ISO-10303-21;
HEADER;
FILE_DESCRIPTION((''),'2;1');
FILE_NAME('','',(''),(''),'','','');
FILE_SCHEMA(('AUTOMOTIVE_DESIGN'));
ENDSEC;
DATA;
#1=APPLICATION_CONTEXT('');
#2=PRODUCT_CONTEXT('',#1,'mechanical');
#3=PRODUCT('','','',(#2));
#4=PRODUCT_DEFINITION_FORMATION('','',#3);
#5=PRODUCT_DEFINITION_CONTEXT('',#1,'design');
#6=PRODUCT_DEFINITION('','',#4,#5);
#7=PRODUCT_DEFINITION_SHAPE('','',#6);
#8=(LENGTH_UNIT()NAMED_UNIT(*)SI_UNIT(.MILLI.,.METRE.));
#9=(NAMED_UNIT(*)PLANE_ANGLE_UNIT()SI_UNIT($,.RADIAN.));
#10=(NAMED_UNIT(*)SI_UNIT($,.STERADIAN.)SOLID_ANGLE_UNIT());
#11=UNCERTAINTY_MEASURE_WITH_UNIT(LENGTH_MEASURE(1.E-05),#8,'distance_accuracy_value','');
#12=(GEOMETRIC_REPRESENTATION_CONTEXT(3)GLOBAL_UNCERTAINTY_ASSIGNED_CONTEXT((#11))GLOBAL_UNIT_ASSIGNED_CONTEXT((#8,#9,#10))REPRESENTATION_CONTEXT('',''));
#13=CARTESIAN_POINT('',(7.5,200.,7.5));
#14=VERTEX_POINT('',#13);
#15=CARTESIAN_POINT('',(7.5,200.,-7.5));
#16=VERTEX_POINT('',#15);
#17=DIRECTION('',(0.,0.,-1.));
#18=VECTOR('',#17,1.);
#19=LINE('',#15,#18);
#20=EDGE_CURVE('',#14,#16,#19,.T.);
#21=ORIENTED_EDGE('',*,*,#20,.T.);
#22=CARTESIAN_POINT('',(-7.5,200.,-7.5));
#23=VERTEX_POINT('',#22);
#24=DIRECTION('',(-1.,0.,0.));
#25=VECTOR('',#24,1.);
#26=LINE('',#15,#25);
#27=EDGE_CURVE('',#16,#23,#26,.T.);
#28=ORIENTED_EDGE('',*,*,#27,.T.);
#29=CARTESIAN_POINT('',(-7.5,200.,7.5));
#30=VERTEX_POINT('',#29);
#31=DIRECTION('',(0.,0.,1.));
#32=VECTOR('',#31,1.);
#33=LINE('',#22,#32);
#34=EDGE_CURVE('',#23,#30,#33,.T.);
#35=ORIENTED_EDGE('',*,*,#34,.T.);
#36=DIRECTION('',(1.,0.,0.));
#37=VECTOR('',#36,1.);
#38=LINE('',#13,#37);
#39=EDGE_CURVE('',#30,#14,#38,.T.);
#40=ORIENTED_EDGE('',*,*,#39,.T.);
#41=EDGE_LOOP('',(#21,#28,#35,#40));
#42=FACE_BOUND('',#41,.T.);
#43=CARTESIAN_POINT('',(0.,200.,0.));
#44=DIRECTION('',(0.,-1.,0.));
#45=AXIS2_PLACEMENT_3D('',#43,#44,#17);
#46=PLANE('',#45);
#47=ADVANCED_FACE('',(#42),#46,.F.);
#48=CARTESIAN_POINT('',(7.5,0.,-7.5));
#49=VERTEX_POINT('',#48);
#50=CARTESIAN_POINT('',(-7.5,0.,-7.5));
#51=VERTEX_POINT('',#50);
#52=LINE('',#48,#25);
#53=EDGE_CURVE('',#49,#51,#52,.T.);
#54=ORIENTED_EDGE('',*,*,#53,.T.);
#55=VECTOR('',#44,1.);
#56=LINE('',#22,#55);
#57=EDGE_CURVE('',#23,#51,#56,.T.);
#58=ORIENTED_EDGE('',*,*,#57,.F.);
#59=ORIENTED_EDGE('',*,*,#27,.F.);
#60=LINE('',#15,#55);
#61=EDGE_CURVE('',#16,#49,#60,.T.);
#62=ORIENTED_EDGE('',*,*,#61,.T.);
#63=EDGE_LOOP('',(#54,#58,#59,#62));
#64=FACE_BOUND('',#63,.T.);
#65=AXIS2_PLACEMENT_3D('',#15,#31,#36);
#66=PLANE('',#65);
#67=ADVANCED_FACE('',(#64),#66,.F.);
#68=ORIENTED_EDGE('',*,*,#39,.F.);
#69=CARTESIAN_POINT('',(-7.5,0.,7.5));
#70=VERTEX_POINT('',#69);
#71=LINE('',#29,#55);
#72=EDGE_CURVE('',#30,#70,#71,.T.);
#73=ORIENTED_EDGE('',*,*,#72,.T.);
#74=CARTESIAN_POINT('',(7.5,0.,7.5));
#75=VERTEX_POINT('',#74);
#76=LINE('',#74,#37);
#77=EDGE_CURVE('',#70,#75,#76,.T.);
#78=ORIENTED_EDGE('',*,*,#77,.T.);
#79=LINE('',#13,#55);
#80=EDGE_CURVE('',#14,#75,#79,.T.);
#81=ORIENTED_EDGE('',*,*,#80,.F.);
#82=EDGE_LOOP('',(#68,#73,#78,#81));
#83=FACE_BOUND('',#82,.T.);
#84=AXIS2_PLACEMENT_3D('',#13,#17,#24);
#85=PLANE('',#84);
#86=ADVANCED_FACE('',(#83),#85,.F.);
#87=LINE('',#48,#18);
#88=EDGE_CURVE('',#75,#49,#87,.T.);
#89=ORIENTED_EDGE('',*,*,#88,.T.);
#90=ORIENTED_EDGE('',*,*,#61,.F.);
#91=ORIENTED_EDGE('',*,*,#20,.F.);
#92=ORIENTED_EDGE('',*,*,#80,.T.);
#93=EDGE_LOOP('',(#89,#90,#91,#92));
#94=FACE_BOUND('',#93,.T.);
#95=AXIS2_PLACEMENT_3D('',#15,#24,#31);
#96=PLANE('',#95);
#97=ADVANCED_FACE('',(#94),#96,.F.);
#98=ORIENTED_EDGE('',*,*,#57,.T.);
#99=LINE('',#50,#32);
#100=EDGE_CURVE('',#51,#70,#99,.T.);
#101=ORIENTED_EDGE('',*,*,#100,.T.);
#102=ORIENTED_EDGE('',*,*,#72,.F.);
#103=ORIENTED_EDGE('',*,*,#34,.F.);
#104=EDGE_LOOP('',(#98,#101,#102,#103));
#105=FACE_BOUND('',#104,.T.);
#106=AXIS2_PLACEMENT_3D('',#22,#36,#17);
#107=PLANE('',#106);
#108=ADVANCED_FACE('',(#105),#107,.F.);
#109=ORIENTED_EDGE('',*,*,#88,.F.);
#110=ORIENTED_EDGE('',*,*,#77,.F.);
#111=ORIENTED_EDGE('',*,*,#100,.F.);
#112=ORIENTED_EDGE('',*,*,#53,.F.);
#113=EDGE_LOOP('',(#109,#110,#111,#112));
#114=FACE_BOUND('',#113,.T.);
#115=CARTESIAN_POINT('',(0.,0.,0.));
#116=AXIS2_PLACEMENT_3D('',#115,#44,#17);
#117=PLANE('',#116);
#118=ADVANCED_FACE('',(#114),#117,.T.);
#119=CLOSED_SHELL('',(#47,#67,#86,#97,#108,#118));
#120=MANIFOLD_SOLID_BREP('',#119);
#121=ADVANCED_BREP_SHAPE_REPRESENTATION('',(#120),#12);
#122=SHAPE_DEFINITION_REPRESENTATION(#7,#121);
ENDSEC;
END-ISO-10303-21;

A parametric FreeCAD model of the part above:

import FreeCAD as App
import Part
import Sketcher
Q = App.Units.Quantity


def add_polygon(sketch, points):
    """Adds a closed chain of lines whose ends are joined by coincident constraints."""
    first, n = sketch.GeometryCount, len(points)
    for a, b in zip(points, points[1:] + points[:1]):
        sketch.addGeometry(Part.LineSegment(App.Vector(*a, 0), App.Vector(*b, 0)), False)
    for i in range(n):
        sketch.addConstraint(Sketcher.Constraint("Coincident", first + i, 2, first + (i + 1) % n, 1))

doc = App.newDocument("Part")
body = doc.addObject("PartDesign::Body", "Body")

sketch1 = doc.addObject("Sketcher::SketchObject", "Sketch")
body.addObject(sketch1)
sketch1.AttachmentSupport = (doc.XZ_Plane, [""])
sketch1.MapMode = "FlatFace"
add_polygon(sketch1, [(-8, -8), (-8, 8), (8, 8), (8, -8)])
sketch1.addConstraint(Sketcher.Constraint("Vertical", 0))
sketch1.addConstraint(Sketcher.Constraint("Horizontal", 1))
sketch1.addConstraint(Sketcher.Constraint("Vertical", 2))
sketch1.addConstraint(Sketcher.Constraint("Horizontal", 3))
sketch1.addConstraint(Sketcher.Constraint("Symmetric", 0, 2, 2, 2, -1, 1))
sketch1.addConstraint(Sketcher.Constraint("Equal", 3, 0))
sketch1.addConstraint(Sketcher.Constraint("DistanceX", 1, 1, 1, 2, Q("15 mm")))
pad1 = doc.addObject("PartDesign::Pad", "Pad")
body.addObject(pad1)
pad1.Profile = sketch1
pad1.Length = 200
pad1.Reversed = True

doc.recompute()
